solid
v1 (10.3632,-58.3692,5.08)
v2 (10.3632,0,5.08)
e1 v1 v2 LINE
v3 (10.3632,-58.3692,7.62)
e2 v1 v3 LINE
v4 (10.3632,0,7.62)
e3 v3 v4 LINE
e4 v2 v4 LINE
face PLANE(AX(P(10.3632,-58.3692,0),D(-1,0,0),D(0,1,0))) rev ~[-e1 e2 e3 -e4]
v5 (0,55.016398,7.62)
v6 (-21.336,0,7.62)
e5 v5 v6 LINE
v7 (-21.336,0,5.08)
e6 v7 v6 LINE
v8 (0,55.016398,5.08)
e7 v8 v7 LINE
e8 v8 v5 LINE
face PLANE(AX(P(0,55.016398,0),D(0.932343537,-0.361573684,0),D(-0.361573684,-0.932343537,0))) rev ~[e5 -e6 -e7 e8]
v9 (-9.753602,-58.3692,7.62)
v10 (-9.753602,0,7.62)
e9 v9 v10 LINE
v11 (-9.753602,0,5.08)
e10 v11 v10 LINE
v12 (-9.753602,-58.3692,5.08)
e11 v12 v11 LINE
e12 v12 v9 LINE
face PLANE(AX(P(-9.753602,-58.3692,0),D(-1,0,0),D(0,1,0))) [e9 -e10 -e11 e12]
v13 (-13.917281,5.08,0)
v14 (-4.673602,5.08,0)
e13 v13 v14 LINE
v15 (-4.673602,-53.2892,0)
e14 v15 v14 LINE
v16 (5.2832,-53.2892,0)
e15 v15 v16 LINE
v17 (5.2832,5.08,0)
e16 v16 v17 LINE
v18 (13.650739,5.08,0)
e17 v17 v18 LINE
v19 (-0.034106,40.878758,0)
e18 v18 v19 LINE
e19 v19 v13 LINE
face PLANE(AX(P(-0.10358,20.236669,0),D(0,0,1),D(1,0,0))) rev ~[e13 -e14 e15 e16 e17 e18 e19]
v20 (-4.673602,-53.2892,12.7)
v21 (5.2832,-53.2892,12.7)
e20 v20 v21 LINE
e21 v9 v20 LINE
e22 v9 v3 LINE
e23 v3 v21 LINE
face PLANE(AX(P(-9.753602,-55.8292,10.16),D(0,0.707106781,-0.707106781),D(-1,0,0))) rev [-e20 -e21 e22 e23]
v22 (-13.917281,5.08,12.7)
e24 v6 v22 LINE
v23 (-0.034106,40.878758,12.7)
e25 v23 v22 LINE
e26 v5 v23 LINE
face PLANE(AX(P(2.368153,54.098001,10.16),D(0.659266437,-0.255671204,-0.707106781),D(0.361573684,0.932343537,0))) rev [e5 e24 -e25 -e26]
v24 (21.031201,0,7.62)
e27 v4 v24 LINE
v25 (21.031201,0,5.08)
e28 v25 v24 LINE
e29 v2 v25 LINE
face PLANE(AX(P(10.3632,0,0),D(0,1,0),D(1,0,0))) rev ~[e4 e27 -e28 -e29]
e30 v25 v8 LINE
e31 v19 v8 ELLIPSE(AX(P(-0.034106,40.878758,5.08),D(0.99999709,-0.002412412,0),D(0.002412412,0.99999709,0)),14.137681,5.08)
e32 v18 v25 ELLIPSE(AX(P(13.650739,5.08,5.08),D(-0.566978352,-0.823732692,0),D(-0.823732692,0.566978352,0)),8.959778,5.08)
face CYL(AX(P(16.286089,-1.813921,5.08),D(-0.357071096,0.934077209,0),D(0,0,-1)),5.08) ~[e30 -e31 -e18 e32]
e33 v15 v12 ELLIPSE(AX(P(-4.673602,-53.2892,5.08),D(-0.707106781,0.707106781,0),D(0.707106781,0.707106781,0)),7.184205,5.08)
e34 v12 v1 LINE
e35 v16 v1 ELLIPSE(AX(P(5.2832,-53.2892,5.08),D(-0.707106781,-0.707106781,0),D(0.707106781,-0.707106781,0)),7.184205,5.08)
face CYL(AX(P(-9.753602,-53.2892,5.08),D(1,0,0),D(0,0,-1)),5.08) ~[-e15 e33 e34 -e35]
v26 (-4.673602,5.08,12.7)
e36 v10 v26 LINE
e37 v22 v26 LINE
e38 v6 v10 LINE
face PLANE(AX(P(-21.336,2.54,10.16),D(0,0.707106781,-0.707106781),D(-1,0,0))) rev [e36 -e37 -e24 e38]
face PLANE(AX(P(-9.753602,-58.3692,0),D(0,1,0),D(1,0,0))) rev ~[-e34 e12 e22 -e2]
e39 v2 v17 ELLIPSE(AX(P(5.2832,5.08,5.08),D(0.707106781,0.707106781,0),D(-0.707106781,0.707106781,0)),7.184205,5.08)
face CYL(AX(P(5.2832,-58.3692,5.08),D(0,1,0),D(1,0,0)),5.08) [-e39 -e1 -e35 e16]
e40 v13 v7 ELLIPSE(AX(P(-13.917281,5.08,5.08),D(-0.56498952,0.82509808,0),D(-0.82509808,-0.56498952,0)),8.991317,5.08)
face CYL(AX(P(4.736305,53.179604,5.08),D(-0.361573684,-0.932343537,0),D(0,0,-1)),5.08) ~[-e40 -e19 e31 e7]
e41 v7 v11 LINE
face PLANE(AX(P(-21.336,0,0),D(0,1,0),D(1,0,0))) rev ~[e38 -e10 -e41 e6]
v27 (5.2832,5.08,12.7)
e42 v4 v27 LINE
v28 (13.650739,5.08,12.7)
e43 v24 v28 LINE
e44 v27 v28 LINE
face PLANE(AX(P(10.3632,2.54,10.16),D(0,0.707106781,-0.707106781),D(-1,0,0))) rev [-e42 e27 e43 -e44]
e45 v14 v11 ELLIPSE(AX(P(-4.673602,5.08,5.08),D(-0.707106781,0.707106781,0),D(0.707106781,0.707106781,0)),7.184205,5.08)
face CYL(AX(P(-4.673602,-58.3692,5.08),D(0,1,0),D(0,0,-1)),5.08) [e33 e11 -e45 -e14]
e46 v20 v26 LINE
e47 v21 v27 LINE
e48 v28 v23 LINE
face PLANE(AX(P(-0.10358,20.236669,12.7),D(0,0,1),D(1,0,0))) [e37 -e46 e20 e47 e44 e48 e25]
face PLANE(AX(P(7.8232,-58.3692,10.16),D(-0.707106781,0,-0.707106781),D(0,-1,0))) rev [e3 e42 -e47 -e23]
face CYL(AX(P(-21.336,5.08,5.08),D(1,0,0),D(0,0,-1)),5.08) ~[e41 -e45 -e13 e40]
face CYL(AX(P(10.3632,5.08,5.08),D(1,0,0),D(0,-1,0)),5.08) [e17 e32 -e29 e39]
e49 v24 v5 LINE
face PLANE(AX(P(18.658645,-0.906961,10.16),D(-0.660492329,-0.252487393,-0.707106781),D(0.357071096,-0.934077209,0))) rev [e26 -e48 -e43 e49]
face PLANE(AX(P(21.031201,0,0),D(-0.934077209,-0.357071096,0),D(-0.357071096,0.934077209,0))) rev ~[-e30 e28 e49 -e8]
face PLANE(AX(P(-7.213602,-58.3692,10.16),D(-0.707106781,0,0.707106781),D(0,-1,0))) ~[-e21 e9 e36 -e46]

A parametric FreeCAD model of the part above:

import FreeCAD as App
import Part
import Sketcher
Q = App.Units.Quantity


def edges_at(feature, points):
    """Names of the edges that pass closest to the given points."""
    edges = feature.Shape.Edges
    near = lambda p: min(range(len(edges)), key=lambda i: edges[i].distToShape(Part.Vertex(*p))[0])
    return sorted({f"Edge{near(p) + 1}" for p in points})

doc = App.newDocument("Part")
body = doc.addObject("PartDesign::Body", "Body")

# Sketch on XY plane
sketch1 = body.newObject("Sketcher::SketchObject", "Sketch")
sketch1.AttachmentSupport = (doc.getObject("XY_Plane"), [""])
sketch1.MapMode = "FlatFace"
sketch1.addGeometry(Part.LineSegment(App.Vector(10, 0, 0), App.Vector(21, 0, 0)), False)
sketch1.addGeometry(Part.LineSegment(App.Vector(21, 0, 0), App.Vector(0, 55, 0)), False)
sketch1.addGeometry(Part.LineSegment(App.Vector(0, 55, 0), App.Vector(-21, 0, 0)), False)
sketch1.addGeometry(Part.LineSegment(App.Vector(-21, 0, 0), App.Vector(-10, 0, 0)), False)
sketch1.addGeometry(Part.LineSegment(App.Vector(-10, 0, 0), App.Vector(-10, -58, 0)), False)
sketch1.addGeometry(Part.LineSegment(App.Vector(-10, -58, 0), App.Vector(10, -58, 0)), False)
sketch1.addGeometry(Part.LineSegment(App.Vector(10, -58, 0), App.Vector(10, 0, 0)), False)
sketch1.addConstraint(Sketcher.Constraint("Coincident", 0, 2, 1, 1))
sketch1.addConstraint(Sketcher.Constraint("Coincident", 1, 2, 2, 1))
sketch1.addConstraint(Sketcher.Constraint("Coincident", 2, 2, 3, 1))
sketch1.addConstraint(Sketcher.Constraint("Coincident", 3, 2, 4, 1))
sketch1.addConstraint(Sketcher.Constraint("Coincident", 4, 2, 5, 1))
sketch1.addConstraint(Sketcher.Constraint("Coincident", 5, 2, 6, 1))
sketch1.addConstraint(Sketcher.Constraint("Coincident", 6, 2, 0, 1))
sketch1.addConstraint(Sketcher.Constraint("Horizontal", 0))
sketch1.addConstraint(Sketcher.Constraint("Horizontal", 3))
sketch1.addConstraint(Sketcher.Constraint("Vertical", 4))
sketch1.addConstraint(Sketcher.Constraint("Horizontal", 5))
sketch1.addConstraint(Sketcher.Constraint("Vertical", 6))
sketch1.addConstraint(Sketcher.Constraint("PointOnObject", 0, 2, -1))
sketch1.addConstraint(Sketcher.Constraint("PointOnObject", 1, 2, -2))
sketch1.addConstraint(Sketcher.Constraint("PointOnObject", 2, 2, -1))
sketch1.addConstraint(Sketcher.Constraint("DistanceX", 0, 1, 0, 2, Q("0.4200001 in")))
sketch1.addConstraint(Sketcher.Constraint("DistanceX", 3, 1, 3, 2, Q("0.4559999 in")))
sketch1.addConstraint(Sketcher.Constraint("DistanceX", 5, 1, 5, 2, Q("0.792 in")))
sketch1.addConstraint(Sketcher.Constraint("DistanceY", 4, 2, 4, 1, Q("2.298 in")))
sketch1.addConstraint(Sketcher.Constraint("DistanceX", 2, 2, -1, 1, Q("0.84 in")))
sketch1.addConstraint(Sketcher.Constraint("DistanceY", -1, 1, 1, 2, Q("2.1659999 in")))
pad1 = body.newObject("PartDesign::Pad", "Pad")
pad1.Profile = sketch1
pad1.Length = Q("0.5 in")
doc.recompute()

chamfer = body.newObject("PartDesign::Chamfer", "Chamfer")
chamfer.Base = (pad1, edges_at(pad1, [
    (10.516, 27.508, 12.7),
    (-10.668, 27.508, 12.7),
    (-15.545, 0, 12.7),
    (-9.754, -29.185, 12.7),
    (0.305, -58.369, 12.7),
    (10.363, -29.185, 12.7),
    (15.697, 0, 12.7),
]))
chamfer.Size = Q("0.2 in")
doc.recompute()

fillet = body.newObject("PartDesign::Fillet", "Fillet")
fillet.Base = (chamfer, edges_at(chamfer, [
    (10.516, 27.508, 0),
    (-10.668, 27.508, 0),
    (-15.545, 0, 0),
    (-9.754, -29.185, 0),
    (0.305, -58.369, 0),
    (10.363, -29.185, 0),
    (15.697, 0, 0),
]))
fillet.Radius = Q("0.2 in")

doc.recompute()
